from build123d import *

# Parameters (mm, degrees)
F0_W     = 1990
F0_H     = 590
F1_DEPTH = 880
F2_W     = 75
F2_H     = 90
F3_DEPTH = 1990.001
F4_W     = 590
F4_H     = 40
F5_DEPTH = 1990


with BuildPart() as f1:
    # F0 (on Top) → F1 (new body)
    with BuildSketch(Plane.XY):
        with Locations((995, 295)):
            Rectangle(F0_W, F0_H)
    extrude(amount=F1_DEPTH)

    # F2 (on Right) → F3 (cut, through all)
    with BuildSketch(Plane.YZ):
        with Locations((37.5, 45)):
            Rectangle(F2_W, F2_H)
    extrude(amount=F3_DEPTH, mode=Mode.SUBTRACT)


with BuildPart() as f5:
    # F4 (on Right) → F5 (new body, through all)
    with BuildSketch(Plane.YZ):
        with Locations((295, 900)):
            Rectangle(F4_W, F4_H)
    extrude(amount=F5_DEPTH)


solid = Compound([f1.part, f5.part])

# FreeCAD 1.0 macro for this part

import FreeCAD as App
import Part
import Sketcher


def add_polygon(sketch, points):
    """Adds a closed chain of lines whose ends are joined by coincident constraints."""
    first, n = sketch.GeometryCount, len(points)
    for a, b in zip(points, points[1:] + points[:1]):
        sketch.addGeometry(Part.LineSegment(App.Vector(*a, 0), App.Vector(*b, 0)), False)
    for i in range(n):
        sketch.addConstraint(Sketcher.Constraint("Coincident", first + i, 2, first + (i + 1) % n, 1))

doc = App.newDocument("Part")
body = doc.addObject("PartDesign::Body", "Body")

sketch1 = doc.addObject("Sketcher::SketchObject", "Sketch")
body.addObject(sketch1)
sketch1.AttachmentSupport = (doc.XY_Plane, [""])
sketch1.MapMode = "FlatFace"
add_polygon(sketch1, [(0, 590), (0, 0), (1990, 0), (1990, 590)])
sketch1.addConstraint([
    Sketcher.Constraint("Vertical", 0),
    Sketcher.Constraint("Horizontal", 1),
    Sketcher.Constraint("Vertical", 2),
    Sketcher.Constraint("Horizontal", 3),
    Sketcher.Constraint("Coincident", 0, 2, -1, 1),
    Sketcher.Constraint("DistanceX", 1, 1, 1, 2, 1990.0),
    Sketcher.Constraint("DistanceY", 0, 2, 0, 1, 590.0),
])
pad1 = doc.addObject("PartDesign::Pad", "Pad")
body.addObject(pad1)
pad1.Profile = sketch1
pad1.Length = 880

sketch2 = doc.addObject("Sketcher::SketchObject", "Sketch001")
body.addObject(sketch2)
sketch2.AttachmentSupport = (doc.YZ_Plane, [""])
sketch2.MapMode = "FlatFace"
add_polygon(sketch2, [(0, 90), (0, 0), (75, 0), (75, 90)])
sketch2.addConstraint([
    Sketcher.Constraint("Vertical", 0),
    Sketcher.Constraint("Horizontal", 1),
    Sketcher.Constraint("Vertical", 2),
    Sketcher.Constraint("Horizontal", 3),
    Sketcher.Constraint("Coincident", 0, 2, -1, 1),
    Sketcher.Constraint("DistanceX", 1, 1, 1, 2, 75.0),
    Sketcher.Constraint("DistanceY", 0, 2, 0, 1, 90.0),
])
pocket1 = doc.addObject("PartDesign::Pocket", "Pocket")
body.addObject(pocket1)
pocket1.Profile = sketch2
pocket1.Type = "ThroughAll"
pocket1.Reversed = True
body2 = doc.addObject("PartDesign::Body", "Body001")

sketch3 = doc.addObject("Sketcher::SketchObject", "Sketch002")
body2.addObject(sketch3)
sketch3.AttachmentSupport = (doc.getObject("YZ_Plane001"), [""])
sketch3.MapMode = "FlatFace"
add_polygon(sketch3, [(0, 920), (0, 880), (590, 880), (590, 920)])
sketch3.addConstraint([
    Sketcher.Constraint("Vertical", 0),
    Sketcher.Constraint("Horizontal", 1),
    Sketcher.Constraint("Vertical", 2),
    Sketcher.Constraint("Horizontal", 3),
    Sketcher.Constraint("PointOnObject", 0, 2, -2),
    Sketcher.Constraint("DistanceX", 1, 1, 1, 2, 590.0),
    Sketcher.Constraint("DistanceY", 0, 2, 0, 1, 40.0),
    Sketcher.Constraint("DistanceY", -1, 1, 0, 2, 880.0),
])
pad2 = doc.addObject("PartDesign::Pad", "Pad001")
body2.addObject(pad2)
pad2.Profile = sketch3
pad2.Length = 1990

doc.recompute()
